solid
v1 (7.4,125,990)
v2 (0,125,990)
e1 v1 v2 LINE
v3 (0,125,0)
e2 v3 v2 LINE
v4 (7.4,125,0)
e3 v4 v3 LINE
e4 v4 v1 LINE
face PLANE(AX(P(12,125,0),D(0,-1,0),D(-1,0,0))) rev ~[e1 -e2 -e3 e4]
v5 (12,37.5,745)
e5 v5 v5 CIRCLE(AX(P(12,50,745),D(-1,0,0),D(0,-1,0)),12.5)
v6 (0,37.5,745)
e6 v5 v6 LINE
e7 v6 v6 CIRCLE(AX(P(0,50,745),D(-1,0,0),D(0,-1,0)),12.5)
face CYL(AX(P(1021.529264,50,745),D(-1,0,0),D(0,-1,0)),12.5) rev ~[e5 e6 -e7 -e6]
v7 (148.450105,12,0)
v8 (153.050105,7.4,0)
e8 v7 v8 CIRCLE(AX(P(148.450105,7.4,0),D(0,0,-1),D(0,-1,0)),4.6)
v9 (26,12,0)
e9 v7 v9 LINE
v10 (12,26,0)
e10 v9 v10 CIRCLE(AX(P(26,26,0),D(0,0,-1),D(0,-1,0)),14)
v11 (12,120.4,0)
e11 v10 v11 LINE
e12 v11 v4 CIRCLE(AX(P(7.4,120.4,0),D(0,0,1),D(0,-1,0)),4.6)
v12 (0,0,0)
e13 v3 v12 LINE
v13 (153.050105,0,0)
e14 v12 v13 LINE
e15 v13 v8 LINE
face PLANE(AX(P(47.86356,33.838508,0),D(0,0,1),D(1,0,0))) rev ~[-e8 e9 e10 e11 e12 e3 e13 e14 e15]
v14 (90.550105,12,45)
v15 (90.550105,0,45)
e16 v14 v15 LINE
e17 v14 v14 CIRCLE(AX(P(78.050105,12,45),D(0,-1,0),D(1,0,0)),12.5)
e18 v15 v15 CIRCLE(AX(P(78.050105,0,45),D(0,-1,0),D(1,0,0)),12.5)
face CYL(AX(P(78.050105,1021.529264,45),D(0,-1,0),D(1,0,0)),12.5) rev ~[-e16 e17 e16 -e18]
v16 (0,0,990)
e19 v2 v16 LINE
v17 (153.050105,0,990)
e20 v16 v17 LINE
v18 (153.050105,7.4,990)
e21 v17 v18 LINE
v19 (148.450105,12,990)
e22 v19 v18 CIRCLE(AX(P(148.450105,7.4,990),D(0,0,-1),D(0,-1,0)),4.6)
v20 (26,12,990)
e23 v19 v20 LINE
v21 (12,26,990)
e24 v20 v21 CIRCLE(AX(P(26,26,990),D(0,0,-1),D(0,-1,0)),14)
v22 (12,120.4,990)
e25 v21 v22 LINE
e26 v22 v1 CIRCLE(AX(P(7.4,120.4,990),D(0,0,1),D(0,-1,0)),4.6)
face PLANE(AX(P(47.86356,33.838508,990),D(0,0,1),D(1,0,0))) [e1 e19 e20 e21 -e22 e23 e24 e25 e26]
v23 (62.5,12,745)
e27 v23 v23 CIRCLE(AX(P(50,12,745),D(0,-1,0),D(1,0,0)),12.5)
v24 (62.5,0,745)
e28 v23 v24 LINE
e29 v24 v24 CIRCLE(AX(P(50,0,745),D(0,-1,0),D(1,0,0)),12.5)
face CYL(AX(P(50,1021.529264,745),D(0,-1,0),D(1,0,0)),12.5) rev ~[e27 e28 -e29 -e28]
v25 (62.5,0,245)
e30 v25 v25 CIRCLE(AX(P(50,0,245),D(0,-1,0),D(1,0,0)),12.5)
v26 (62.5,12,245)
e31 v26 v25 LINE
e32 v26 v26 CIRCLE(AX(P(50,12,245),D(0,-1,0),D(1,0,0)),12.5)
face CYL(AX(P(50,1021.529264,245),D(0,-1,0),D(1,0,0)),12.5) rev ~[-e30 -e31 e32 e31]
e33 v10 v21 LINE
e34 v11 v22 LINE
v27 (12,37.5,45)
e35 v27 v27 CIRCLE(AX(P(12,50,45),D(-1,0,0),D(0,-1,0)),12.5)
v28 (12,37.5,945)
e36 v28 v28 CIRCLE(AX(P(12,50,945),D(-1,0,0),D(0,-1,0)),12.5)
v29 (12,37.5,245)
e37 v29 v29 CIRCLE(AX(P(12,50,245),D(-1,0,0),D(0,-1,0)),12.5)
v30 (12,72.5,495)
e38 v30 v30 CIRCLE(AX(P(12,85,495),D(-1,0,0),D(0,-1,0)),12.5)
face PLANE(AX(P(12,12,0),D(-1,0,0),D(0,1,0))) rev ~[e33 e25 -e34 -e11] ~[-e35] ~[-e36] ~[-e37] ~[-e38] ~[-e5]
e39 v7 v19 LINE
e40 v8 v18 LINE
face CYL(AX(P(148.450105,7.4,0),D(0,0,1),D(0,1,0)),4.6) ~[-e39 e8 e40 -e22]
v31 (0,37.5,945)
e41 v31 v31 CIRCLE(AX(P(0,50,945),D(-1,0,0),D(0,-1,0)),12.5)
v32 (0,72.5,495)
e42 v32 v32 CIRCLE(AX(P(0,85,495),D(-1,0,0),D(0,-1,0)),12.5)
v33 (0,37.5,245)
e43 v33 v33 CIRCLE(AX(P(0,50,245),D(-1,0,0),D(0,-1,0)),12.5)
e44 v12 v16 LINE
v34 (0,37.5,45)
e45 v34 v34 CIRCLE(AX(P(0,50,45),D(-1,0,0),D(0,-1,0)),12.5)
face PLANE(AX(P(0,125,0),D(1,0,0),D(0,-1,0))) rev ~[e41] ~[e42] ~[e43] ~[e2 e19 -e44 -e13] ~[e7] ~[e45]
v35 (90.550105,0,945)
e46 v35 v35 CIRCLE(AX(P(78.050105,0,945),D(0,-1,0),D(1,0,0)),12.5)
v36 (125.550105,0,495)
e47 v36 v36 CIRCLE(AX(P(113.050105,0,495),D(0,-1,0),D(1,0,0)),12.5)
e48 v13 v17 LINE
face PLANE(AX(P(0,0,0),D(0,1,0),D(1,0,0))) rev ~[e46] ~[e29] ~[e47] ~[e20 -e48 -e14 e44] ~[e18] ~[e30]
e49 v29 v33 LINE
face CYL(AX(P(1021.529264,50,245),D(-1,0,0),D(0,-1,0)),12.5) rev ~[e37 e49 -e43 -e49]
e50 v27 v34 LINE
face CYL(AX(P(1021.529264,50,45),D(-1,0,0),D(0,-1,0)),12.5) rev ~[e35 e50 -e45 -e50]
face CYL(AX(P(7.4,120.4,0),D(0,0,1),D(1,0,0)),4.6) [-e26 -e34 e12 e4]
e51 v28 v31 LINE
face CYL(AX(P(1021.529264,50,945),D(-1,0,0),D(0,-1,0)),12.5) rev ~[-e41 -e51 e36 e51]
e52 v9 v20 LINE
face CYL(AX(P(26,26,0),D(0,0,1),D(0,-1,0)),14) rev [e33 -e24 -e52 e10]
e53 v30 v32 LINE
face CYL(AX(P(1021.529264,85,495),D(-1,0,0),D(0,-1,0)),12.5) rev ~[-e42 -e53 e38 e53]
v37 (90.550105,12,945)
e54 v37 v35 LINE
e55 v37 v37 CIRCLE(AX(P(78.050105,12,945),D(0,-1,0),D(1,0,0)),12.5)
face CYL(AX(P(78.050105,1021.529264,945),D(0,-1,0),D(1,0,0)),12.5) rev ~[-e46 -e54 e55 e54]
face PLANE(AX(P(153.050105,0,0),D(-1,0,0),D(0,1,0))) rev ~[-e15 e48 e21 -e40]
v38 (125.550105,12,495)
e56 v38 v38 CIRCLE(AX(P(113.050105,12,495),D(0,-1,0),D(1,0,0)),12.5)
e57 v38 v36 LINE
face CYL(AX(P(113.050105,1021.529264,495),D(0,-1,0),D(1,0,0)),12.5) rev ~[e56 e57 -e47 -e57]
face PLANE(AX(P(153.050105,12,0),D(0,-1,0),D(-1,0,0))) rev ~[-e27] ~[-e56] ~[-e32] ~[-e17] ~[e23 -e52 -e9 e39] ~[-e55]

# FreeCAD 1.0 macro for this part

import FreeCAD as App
import Part
import Sketcher


def edges_at(feature, points):
    """Names of the edges that pass closest to the given points."""
    edges = feature.Shape.Edges
    near = lambda p: min(range(len(edges)), key=lambda i: edges[i].distToShape(Part.Vertex(*p))[0])
    return sorted({f"Edge{near(p) + 1}" for p in points})

doc = App.newDocument("Part")
params = doc.addObject("Spreadsheet::Sheet", "Params")
for row, (alias, value) in enumerate([
    ("sketch1_width", "12 mm"),
    ("sketch1_height", "125 mm"),
    ("pad1_length", "990 mm"),
    ("fillet_radius", "14 mm"),
    ("fillet2_radius", "4.6 mm"),
    ("sketch2_diameter", "25 mm"),
    ("hole_diameter", "25 mm"),
    ("sketch3_diameter", "25 mm"),
    ("hole2_diameter", "25 mm"),
    ("sketch4_diameter", "25 mm"),
    ("hole3_diameter", "25 mm"),
], start=1):
    params.set(f"A{row}", alias)
    params.set(f"B{row}", "=" + value)
    params.setAlias(f"B{row}", alias)

body = doc.addObject("PartDesign::Body", "Body")

sketch1 = doc.addObject("Sketcher::SketchObject", "Sketch")
body.addObject(sketch1)
sketch1.AttachmentSupport = (doc.XY_Plane, [""])
sketch1.MapMode = "FlatFace"
sketch1.addGeometry(Part.LineSegment(App.Vector(0, 125, 0), App.Vector(0, 0, 0)), False)
sketch1.addGeometry(Part.LineSegment(App.Vector(0, 0, 0), App.Vector(153, 0, 0)), False)
sketch1.addGeometry(Part.LineSegment(App.Vector(153, 0, 0), App.Vector(153, 12, 0)), False)
sketch1.addGeometry(Part.LineSegment(App.Vector(153, 12, 0), App.Vector(12, 12, 0)), False)
sketch1.addGeometry(Part.LineSegment(App.Vector(12, 12, 0), App.Vector(12, 125, 0)), False)
sketch1.addGeometry(Part.LineSegment(App.Vector(12, 125, 0), App.Vector(0, 125, 0)), False)
sketch1.addConstraint(Sketcher.Constraint("Coincident", 0, 2, 1, 1))
sketch1.addConstraint(Sketcher.Constraint("Coincident", 1, 2, 2, 1))
sketch1.addConstraint(Sketcher.Constraint("Coincident", 2, 2, 3, 1))
sketch1.addConstraint(Sketcher.Constraint("Coincident", 3, 2, 4, 1))
sketch1.addConstraint(Sketcher.Constraint("Coincident", 4, 2, 5, 1))
sketch1.addConstraint(Sketcher.Constraint("Coincident", 5, 2, 0, 1))
sketch1.addConstraint(Sketcher.Constraint("Vertical", 0))
sketch1.addConstraint(Sketcher.Constraint("Horizontal", 1))
sketch1.addConstraint(Sketcher.Constraint("Vertical", 2))
sketch1.addConstraint(Sketcher.Constraint("Horizontal", 3))
sketch1.addConstraint(Sketcher.Constraint("Vertical", 4))
sketch1.addConstraint(Sketcher.Constraint("Horizontal", 5))
sketch1.addConstraint(Sketcher.Constraint("Coincident", 0, 2, -1, 1))
sketch1.addConstraint(Sketcher.Constraint("Equal", 5, 2))
sketch1.addConstraint(Sketcher.Constraint("DistanceX", 5, 2, 5, 1, 12.0))
sketch1.addConstraint(Sketcher.Constraint("DistanceY", 0, 2, 0, 1, 125.0))
sketch1.addConstraint(Sketcher.Constraint("DistanceX", 1, 1, 1, 2, 153.050105))
sketch1.setExpression("Constraints[14]", "Params.sketch1_width")
sketch1.setExpression("Constraints[15]", "Params.sketch1_height")
pad1 = doc.addObject("PartDesign::Pad", "Pad")
body.addObject(pad1)
pad1.Profile = sketch1
pad1.setExpression("Length", "Params.pad1_length")
doc.recompute()

fillet = doc.addObject("PartDesign::Fillet", "Fillet")
body.addObject(fillet)
fillet.Base = (pad1, edges_at(pad1, [(12, 12, 495)]))
fillet.setExpression("Radius", "Params.fillet_radius")
doc.recompute()

fillet2 = doc.addObject("PartDesign::Fillet", "Fillet001")
body.addObject(fillet2)
fillet2.Base = (fillet, edges_at(fillet, [(12, 125, 495), (153.05, 12, 495)]))
fillet2.setExpression("Radius", "Params.fillet2_radius")

sketch2 = doc.addObject("Sketcher::SketchObject", "Sketch001")
body.addObject(sketch2)
sketch2.AttachmentSupport = (doc.XZ_Plane, [""])
sketch2.MapMode = "FlatFace"
sketch2.AttachmentOffset = App.Placement(App.Vector(0, 0, -12), App.Rotation())
sketch2.addGeometry(Part.Circle(App.Vector(113, 495, 0), App.Vector(0, 0, 1), 12), False)
sketch2.addConstraint(Sketcher.Constraint("Diameter", 0, 25.0))
sketch2.addConstraint(Sketcher.Constraint("DistanceY", -1, 1, 0, 3, 495.0))
sketch2.addConstraint(Sketcher.Constraint("DistanceX", -1, 1, 0, 3, 113.050105))
sketch2.setExpression("Constraints[0]", "Params.sketch2_diameter")
doc.recompute()
hole = doc.addObject("PartDesign::Hole", "Hole")
body.addObject(hole)
hole.Profile = sketch2
hole.ThreadType = "None"
hole.setExpression("Diameter", "Params.hole_diameter")
hole.DepthType = "ThroughAll"
hole.Reversed = True

sketch3 = doc.addObject("Sketcher::SketchObject", "Sketch002")
body.addObject(sketch3)
sketch3.AttachmentSupport = (doc.XZ_Plane, [""])
sketch3.MapMode = "FlatFace"
sketch3.AttachmentOffset = App.Placement(App.Vector(0, 0, -12), App.Rotation())
sketch3.addGeometry(Part.Circle(App.Vector(78, 945, 0), App.Vector(0, 0, 1), 12), False)
sketch3.addGeometry(Part.Circle(App.Vector(50, 745, 0), App.Vector(0, 0, 1), 12), False)
sketch3.addGeometry(Part.Circle(App.Vector(50, 245, 0), App.Vector(0, 0, 1), 12), False)
sketch3.addGeometry(Part.Circle(App.Vector(78, 45, 0), App.Vector(0, 0, 1), 12), False)
sketch3.addConstraint(Sketcher.Constraint("Equal", 0, 1))
sketch3.addConstraint(Sketcher.Constraint("Equal", 1, 2))
sketch3.addConstraint(Sketcher.Constraint("Equal", 2, 3))
sketch3.addConstraint(Sketcher.Constraint("Vertical", 1, 3, 2, 3))
sketch3.addConstraint(Sketcher.Constraint("Vertical", 0, 3, 3, 3))
sketch3.addConstraint(Sketcher.Constraint("Diameter", 0, 25.0))
sketch3.addConstraint(Sketcher.Constraint("DistanceY", -1, 1, 0, 3, 945.0))
sketch3.addConstraint(Sketcher.Constraint("DistanceX", -1, 1, 1, 3, 50.0))
sketch3.addConstraint(Sketcher.Constraint("DistanceY", -1, 1, 1, 3, 745.0))
sketch3.addConstraint(Sketcher.Constraint("DistanceY", -1, 1, 2, 3, 245.0))
sketch3.addConstraint(Sketcher.Constraint("DistanceY", -1, 1, 3, 3, 45.0))
sketch3.addConstraint(Sketcher.Constraint("DistanceX", -1, 1, 0, 3, 78.050105))
sketch3.setExpression("Constraints[5]", "Params.sketch3_diameter")
doc.recompute()
hole2 = doc.addObject("PartDesign::Hole", "Hole001")
body.addObject(hole2)
hole2.Profile = sketch3
hole2.ThreadType = "None"
hole2.setExpression("Diameter", "Params.hole2_diameter")
hole2.DepthType = "ThroughAll"
hole2.Reversed = True

sketch4 = doc.addObject("Sketcher::SketchObject", "Sketch003")
body.addObject(sketch4)
sketch4.AttachmentSupport = (doc.YZ_Plane, [""])
sketch4.MapMode = "FlatFace"
sketch4.AttachmentOffset = App.Placement(App.Vector(0, 0, 12), App.Rotation())
sketch4.addGeometry(Part.Circle(App.Vector(50, 945, 0), App.Vector(0, 0, 1), 12), False)
sketch4.addGeometry(Part.Circle(App.Vector(50, 745, 0), App.Vector(0, 0, 1), 12), False)
sketch4.addGeometry(Part.Circle(App.Vector(85, 495, 0), App.Vector(0, 0, 1), 12), False)
sketch4.addGeometry(Part.Circle(App.Vector(50, 245, 0), App.Vector(0, 0, 1), 12), False)
sketch4.addGeometry(Part.Circle(App.Vector(50, 45, 0), App.Vector(0, 0, 1), 12), False)
sketch4.addConstraint(Sketcher.Constraint("Equal", 0, 1))
sketch4.addConstraint(Sketcher.Constraint("Equal", 1, 2))
sketch4.addConstraint(Sketcher.Constraint("Equal", 2, 3))
sketch4.addConstraint(Sketcher.Constraint("Equal", 3, 4))
sketch4.addConstraint(Sketcher.Constraint("Vertical", 0, 3, 1, 3))
sketch4.addConstraint(Sketcher.Constraint("Vertical", 1, 3, 3, 3))
sketch4.addConstraint(Sketcher.Constraint("Vertical", 3, 3, 4, 3))
sketch4.addConstraint(Sketcher.Constraint("Diameter", 0, 25.0))
sketch4.addConstraint(Sketcher.Constraint("DistanceX", -1, 1, 0, 3, 50.0))
sketch4.addConstraint(Sketcher.Constraint("DistanceY", -1, 1, 0, 3, 945.0))
sketch4.addConstraint(Sketcher.Constraint("DistanceY", -1, 1, 1, 3, 745.0))
sketch4.addConstraint(Sketcher.Constraint("DistanceX", -1, 1, 2, 3, 85.0))
sketch4.addConstraint(Sketcher.Constraint("DistanceY", -1, 1, 2, 3, 495.0))
sketch4.addConstraint(Sketcher.Constraint("DistanceY", -1, 1, 3, 3, 245.0))
sketch4.addConstraint(Sketcher.Constraint("DistanceY", -1, 1, 4, 3, 45.0))
sketch4.setExpression("Constraints[7]", "Params.sketch4_diameter")
doc.recompute()
hole3 = doc.addObject("PartDesign::Hole", "Hole002")
body.addObject(hole3)
hole3.Profile = sketch4
hole3.ThreadType = "None"
hole3.setExpression("Diameter", "Params.hole3_diameter")
hole3.DepthType = "ThroughAll"

doc.recompute()
